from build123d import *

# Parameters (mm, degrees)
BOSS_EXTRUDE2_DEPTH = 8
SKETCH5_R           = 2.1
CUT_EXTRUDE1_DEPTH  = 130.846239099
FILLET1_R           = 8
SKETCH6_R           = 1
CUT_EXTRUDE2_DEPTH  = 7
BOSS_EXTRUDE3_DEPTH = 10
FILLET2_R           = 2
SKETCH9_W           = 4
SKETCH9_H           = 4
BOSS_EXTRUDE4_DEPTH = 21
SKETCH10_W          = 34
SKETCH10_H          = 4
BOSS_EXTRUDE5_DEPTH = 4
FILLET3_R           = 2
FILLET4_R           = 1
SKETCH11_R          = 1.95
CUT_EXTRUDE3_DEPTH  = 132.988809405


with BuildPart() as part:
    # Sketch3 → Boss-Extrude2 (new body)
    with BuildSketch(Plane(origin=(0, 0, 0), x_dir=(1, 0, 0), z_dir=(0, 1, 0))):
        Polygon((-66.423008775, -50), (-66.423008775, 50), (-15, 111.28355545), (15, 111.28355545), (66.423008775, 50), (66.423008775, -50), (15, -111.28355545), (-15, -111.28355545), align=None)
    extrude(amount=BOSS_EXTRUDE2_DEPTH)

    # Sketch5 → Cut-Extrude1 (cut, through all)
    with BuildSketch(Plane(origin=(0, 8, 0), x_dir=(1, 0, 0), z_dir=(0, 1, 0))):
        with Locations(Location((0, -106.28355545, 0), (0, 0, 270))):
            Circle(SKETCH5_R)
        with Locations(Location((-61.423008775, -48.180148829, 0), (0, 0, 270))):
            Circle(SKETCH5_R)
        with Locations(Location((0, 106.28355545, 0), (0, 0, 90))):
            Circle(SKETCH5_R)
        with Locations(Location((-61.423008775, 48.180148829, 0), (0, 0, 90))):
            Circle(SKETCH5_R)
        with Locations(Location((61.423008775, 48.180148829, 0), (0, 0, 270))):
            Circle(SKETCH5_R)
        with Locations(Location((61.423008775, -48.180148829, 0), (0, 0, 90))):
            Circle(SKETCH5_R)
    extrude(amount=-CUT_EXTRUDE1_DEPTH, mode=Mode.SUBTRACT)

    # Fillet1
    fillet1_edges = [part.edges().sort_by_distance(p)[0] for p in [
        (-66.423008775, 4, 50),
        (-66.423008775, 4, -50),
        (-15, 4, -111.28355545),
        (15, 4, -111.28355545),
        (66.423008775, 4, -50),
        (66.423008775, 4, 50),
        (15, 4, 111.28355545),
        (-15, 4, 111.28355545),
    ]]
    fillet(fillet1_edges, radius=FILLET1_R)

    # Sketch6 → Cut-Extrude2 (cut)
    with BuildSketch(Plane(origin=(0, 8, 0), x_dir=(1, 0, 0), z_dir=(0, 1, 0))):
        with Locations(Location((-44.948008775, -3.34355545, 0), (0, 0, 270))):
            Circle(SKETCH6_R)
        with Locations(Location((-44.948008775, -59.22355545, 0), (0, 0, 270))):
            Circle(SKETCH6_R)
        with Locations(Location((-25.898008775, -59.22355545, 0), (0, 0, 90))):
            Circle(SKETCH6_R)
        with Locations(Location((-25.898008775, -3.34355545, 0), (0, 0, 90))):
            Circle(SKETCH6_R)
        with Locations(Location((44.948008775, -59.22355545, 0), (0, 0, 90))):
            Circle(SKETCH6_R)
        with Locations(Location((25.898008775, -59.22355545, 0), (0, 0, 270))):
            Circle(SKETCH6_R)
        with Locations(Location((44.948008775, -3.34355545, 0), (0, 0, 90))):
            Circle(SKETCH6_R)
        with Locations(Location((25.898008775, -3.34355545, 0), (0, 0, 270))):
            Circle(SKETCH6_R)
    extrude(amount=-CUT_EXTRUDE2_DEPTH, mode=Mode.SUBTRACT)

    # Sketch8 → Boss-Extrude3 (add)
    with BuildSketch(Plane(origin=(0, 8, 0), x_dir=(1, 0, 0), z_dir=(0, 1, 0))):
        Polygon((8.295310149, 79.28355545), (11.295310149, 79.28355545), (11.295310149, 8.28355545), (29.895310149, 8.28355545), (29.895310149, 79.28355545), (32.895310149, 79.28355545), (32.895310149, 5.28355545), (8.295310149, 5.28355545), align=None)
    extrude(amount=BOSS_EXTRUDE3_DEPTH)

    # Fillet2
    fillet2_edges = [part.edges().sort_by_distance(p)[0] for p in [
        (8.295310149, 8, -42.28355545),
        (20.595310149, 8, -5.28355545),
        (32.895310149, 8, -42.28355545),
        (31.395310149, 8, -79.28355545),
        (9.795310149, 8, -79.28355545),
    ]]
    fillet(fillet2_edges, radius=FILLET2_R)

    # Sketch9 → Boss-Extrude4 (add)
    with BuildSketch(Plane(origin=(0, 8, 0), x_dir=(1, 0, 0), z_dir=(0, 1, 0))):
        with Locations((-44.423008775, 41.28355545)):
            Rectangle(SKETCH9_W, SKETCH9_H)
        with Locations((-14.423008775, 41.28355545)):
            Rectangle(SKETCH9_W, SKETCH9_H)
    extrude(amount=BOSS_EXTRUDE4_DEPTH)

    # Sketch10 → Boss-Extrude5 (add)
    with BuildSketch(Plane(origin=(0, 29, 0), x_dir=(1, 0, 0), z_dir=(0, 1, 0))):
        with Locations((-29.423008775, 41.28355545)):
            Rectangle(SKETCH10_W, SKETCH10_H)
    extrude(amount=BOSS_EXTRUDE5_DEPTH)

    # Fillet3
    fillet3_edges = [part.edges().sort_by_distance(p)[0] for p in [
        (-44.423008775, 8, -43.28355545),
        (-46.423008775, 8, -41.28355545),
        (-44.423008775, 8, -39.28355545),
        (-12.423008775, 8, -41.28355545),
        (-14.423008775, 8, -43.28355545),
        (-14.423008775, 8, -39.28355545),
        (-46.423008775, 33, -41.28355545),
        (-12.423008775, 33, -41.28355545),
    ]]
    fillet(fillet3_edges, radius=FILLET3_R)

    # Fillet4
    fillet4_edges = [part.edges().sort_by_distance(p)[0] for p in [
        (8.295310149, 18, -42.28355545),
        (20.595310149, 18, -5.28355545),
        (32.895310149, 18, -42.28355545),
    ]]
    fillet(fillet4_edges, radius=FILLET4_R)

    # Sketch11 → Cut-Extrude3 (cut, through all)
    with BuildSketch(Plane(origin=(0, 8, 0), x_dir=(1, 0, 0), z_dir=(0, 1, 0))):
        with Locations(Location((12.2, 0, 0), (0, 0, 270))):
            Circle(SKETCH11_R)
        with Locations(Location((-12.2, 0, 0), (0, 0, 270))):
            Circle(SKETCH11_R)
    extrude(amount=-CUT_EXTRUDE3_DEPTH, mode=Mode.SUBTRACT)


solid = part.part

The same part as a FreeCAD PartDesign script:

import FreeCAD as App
import Part
import Sketcher

V = App.Vector
Q = App.Units.Quantity


def edges_at(feature, points):
    """Names of the edges that pass closest to the given points."""
    edges = feature.Shape.Edges
    near = lambda p: min(range(len(edges)), key=lambda i: edges[i].distToShape(Part.Vertex(*p))[0])
    return sorted({f"Edge{near(p) + 1}" for p in points})

doc = App.newDocument("Part")
body = doc.addObject("PartDesign::Body", "Body")

# Sketch on XZ plane
sketch1 = body.newObject("Sketcher::SketchObject", "Sketch")
sketch1.AttachmentSupport = (doc.getObject("XZ_Plane"), [""])
sketch1.MapMode = "FlatFace"
sketch1.addGeometry([
    Part.LineSegment(V(-66, -50, 0), V(-66, 50, 0)),  # 0
    Part.LineSegment(V(-66, 50, 0), V(-15, 111, 0)),  # 1
    Part.LineSegment(V(-15, 111, 0), V(15, 111, 0)),  # 2
    Part.LineSegment(V(15, 111, 0), V(66, 50, 0)),  # 3
    Part.LineSegment(V(66, 50, 0), V(66, -50, 0)),  # 4
    Part.LineSegment(V(66, -50, 0), V(15, -111, 0)),  # 5
    Part.LineSegment(V(15, -111, 0), V(-15, -111, 0)),  # 6
    Part.LineSegment(V(-15, -111, 0), V(-66, -50, 0)),  # 7
], False)
sketch1.addConstraint([
    Sketcher.Constraint("Coincident", 0, 2, 1, 1),
    Sketcher.Constraint("Coincident", 1, 2, 2, 1),
    Sketcher.Constraint("Coincident", 2, 2, 3, 1),
    Sketcher.Constraint("Coincident", 3, 2, 4, 1),
    Sketcher.Constraint("Coincident", 4, 2, 5, 1),
    Sketcher.Constraint("Coincident", 5, 2, 6, 1),
    Sketcher.Constraint("Coincident", 6, 2, 7, 1),
    Sketcher.Constraint("Coincident", 7, 2, 0, 1),
    Sketcher.Constraint("Vertical", 0),
    Sketcher.Constraint("Horizontal", 2),
    Sketcher.Constraint("Vertical", 4),
    Sketcher.Constraint("Horizontal", 6),
    Sketcher.Constraint("Symmetric", 0, 2, 4, 2, -1, 1),
    Sketcher.Constraint("Symmetric", 1, 2, 5, 2, -1, 1),
    Sketcher.Constraint("Parallel", 3, 7),
    Sketcher.Constraint("Horizontal", 0, 2, 3, 2),
    Sketcher.Constraint("Horizontal", 4, 2, 7, 2),
    Sketcher.Constraint("Vertical", 2, 2, 5, 2),
    Sketcher.Constraint("DistanceX", 2, 1, 2, 2, 30.0),
    Sketcher.Constraint("DistanceY", 0, 1, 0, 2, 100.0),
    Sketcher.Constraint("Angle", 1, Q("50 deg")),
    Sketcher.Constraint("Distance", 1, 80.0),
])
pad1 = body.newObject("PartDesign::Pad", "Pad")
pad1.Profile = sketch1
pad1.Length = 8
pad1.Reversed = True

# Sketch on XZ plane
sketch2 = body.newObject("Sketcher::SketchObject", "Sketch001")
sketch2.AttachmentSupport = (doc.getObject("XZ_Plane"), [""])
sketch2.MapMode = "FlatFace"
sketch2.AttachmentOffset = App.Placement(V(0, 0, -8), App.Rotation())
sketch2.addGeometry([
    Part.Circle(V(0, 106.3, 0), V(0, 0, 1), 2.1),  # 0
    Part.Circle(V(-61.4, 48.2, 0), V(0, 0, 1), 2.1),  # 1
    Part.Circle(V(0, -106.3, 0), V(0, 0, 1), 2.1),  # 2
    Part.Circle(V(-61.4, -48.2, 0), V(0, 0, 1), 2.1),  # 3
    Part.Circle(V(61.4, -48.2, 0), V(0, 0, 1), 2.1),  # 4
    Part.Circle(V(61.4, 48.2, 0), V(0, 0, 1), 2.1),  # 5
], False)
sketch2.addConstraint([
    Sketcher.Constraint("Equal", 0, 1),
    Sketcher.Constraint("Equal", 1, 2),
    Sketcher.Constraint("Equal", 2, 3),
    Sketcher.Constraint("Equal", 3, 4),
    Sketcher.Constraint("Equal", 4, 5),
    Sketcher.Constraint("Symmetric", 0, 3, 2, 3, -1, 1),
    Sketcher.Constraint("Symmetric", 1, 3, 4, 3, -1, 1),
    Sketcher.Constraint("Symmetric", 3, 3, 5, 3, -1, 1),
    Sketcher.Constraint("Symmetric", 3, 3, 4, 3, -2),
    Sketcher.Constraint("PointOnObject", 0, 3, -2),
    Sketcher.Constraint("Diameter", 0, 4.2),
    Sketcher.Constraint("DistanceX", 1, 3, -1, 1, 61.423009),
    Sketcher.Constraint("DistanceY", -1, 1, 1, 3, 48.180149),
    Sketcher.Constraint("DistanceY", 2, 3, 0, 3, 212.567111),
])
pocket1 = body.newObject("PartDesign::Pocket", "Pocket")
pocket1.Profile = sketch2
pocket1.Type = "ThroughAll"
pocket1.Reversed = True
doc.recompute()

fillet = body.newObject("PartDesign::Fillet", "Fillet")
fillet.Base = (pocket1, edges_at(pocket1, [
    (-66.423, 4, 50),
    (-66.423, 4, -50),
    (-15, 4, -111.284),
    (15, 4, -111.284),
    (66.423, 4, -50),
    (66.423, 4, 50),
    (15, 4, 111.284),
    (-15, 4, 111.284),
]))
fillet.Radius = 8

# Sketch on XZ plane
sketch3 = body.newObject("Sketcher::SketchObject", "Sketch002")
sketch3.AttachmentSupport = (doc.getObject("XZ_Plane"), [""])
sketch3.MapMode = "FlatFace"
sketch3.AttachmentOffset = App.Placement(V(0, 0, -8), App.Rotation())
sketch3.addGeometry([
    Part.Circle(V(-44.9, 3.3, 0), V(0, 0, 1), 1),  # 0
    Part.Circle(V(-44.9, 59.2, 0), V(0, 0, 1), 1),  # 1
    Part.Circle(V(-25.9, 59.2, 0), V(0, 0, 1), 1),  # 2
    Part.Circle(V(-25.9, 3.3, 0), V(0, 0, 1), 1),  # 3
    Part.Circle(V(44.9, 59.2, 0), V(0, 0, 1), 1),  # 4
    Part.Circle(V(25.9, 59.2, 0), V(0, 0, 1), 1),  # 5
    Part.Circle(V(44.9, 3.3, 0), V(0, 0, 1), 1),  # 6
    Part.Circle(V(25.9, 3.3, 0), V(0, 0, 1), 1),  # 7
], False)
sketch3.addConstraint([
    Sketcher.Constraint("Equal", 0, 1),
    Sketcher.Constraint("Equal", 1, 2),
    Sketcher.Constraint("Equal", 2, 3),
    Sketcher.Constraint("Equal", 3, 4),
    Sketcher.Constraint("Equal", 4, 5),
    Sketcher.Constraint("Equal", 5, 6),
    Sketcher.Constraint("Equal", 6, 7),
    Sketcher.Constraint("Symmetric", 1, 3, 4, 3, -2),
    Sketcher.Constraint("Symmetric", 2, 3, 5, 3, -2),
    Sketcher.Constraint("Symmetric", 0, 3, 6, 3, -2),
    Sketcher.Constraint("Symmetric", 3, 3, 7, 3, -2),
    Sketcher.Constraint("Horizontal", 1, 3, 2, 3),
    Sketcher.Constraint("Horizontal", 0, 3, 3, 3),
    Sketcher.Constraint("Vertical", 0, 3, 1, 3),
    Sketcher.Constraint("Vertical", 2, 3, 3, 3),
    Sketcher.Constraint("Diameter", 0, 2.0),
    Sketcher.Constraint("DistanceY", 0, 3, 1, 3, 55.88),
    Sketcher.Constraint("DistanceX", 1, 3, 2, 3, 19.05),
    Sketcher.Constraint("DistanceX", 0, 3, -1, 1, 44.948009),
    Sketcher.Constraint("DistanceY", -1, 1, 0, 3, 3.343555),
])
pocket2 = body.newObject("PartDesign::Pocket", "Pocket001")
pocket2.Profile = sketch3
pocket2.Length = 7
pocket2.Reversed = True

# Sketch on XZ plane
sketch4 = body.newObject("Sketcher::SketchObject", "Sketch003")
sketch4.AttachmentSupport = (doc.getObject("XZ_Plane"), [""])
sketch4.MapMode = "FlatFace"
sketch4.AttachmentOffset = App.Placement(V(0, 0, -8), App.Rotation())
sketch4.addGeometry([
    Part.LineSegment(V(11.3, -79.3, 0), V(8.3, -79.3, 0)),  # 0
    Part.LineSegment(V(8.3, -79.3, 0), V(8.3, -5.3, 0)),  # 1
    Part.LineSegment(V(8.3, -5.3, 0), V(32.9, -5.3, 0)),  # 2
    Part.LineSegment(V(32.9, -5.3, 0), V(32.9, -79.3, 0)),  # 3
    Part.LineSegment(V(32.9, -79.3, 0), V(29.9, -79.3, 0)),  # 4
    Part.LineSegment(V(29.9, -79.3, 0), V(29.9, -8.3, 0)),  # 5
    Part.LineSegment(V(29.9, -8.3, 0), V(11.3, -8.3, 0)),  # 6
    Part.LineSegment(V(11.3, -8.3, 0), V(11.3, -79.3, 0)),  # 7
], False)
sketch4.addConstraint([
    Sketcher.Constraint("Coincident", 0, 2, 1, 1),
    Sketcher.Constraint("Coincident", 1, 2, 2, 1),
    Sketcher.Constraint("Coincident", 2, 2, 3, 1),
    Sketcher.Constraint("Coincident", 3, 2, 4, 1),
    Sketcher.Constraint("Coincident", 4, 2, 5, 1),
    Sketcher.Constraint("Coincident", 5, 2, 6, 1),
    Sketcher.Constraint("Coincident", 6, 2, 7, 1),
    Sketcher.Constraint("Coincident", 7, 2, 0, 1),
    Sketcher.Constraint("Horizontal", 0),
    Sketcher.Constraint("Vertical", 1),
    Sketcher.Constraint("Horizontal", 2),
    Sketcher.Constraint("Vertical", 3),
    Sketcher.Constraint("Horizontal", 4),
    Sketcher.Constraint("Vertical", 5),
    Sketcher.Constraint("Horizontal", 6),
    Sketcher.Constraint("Vertical", 7),
    Sketcher.Constraint("Horizontal", 0, 2, 3, 2),
    Sketcher.Constraint("Equal", 0, 4),
    Sketcher.Constraint("DistanceX", 0, 2, 0, 1, 3.0),
    Sketcher.Constraint("DistanceY", 1, 1, 1, 2, 74.0),
    Sketcher.Constraint("DistanceY", 5, 1, 5, 2, 71.0),
    Sketcher.Constraint("DistanceX", 2, 1, 2, 2, 24.6),
    Sketcher.Constraint("DistanceX", -1, 1, 0, 2, 8.29531),
    Sketcher.Constraint("DistanceY", 0, 2, -1, 1, 79.283555),
])
pad2 = body.newObject("PartDesign::Pad", "Pad001")
pad2.Profile = sketch4
pad2.Length = 10
pad2.Reversed = True
doc.recompute()

fillet2 = body.newObject("PartDesign::Fillet", "Fillet001")
fillet2.Base = (pad2, edges_at(pad2, [
    (8.295, 8, -42.284),
    (20.595, 8, -5.284),
    (32.895, 8, -42.284),
    (31.395, 8, -79.284),
    (9.795, 8, -79.284),
]))
fillet2.Radius = 2

# Sketch on XZ plane
sketch5 = body.newObject("Sketcher::SketchObject", "Sketch004")
sketch5.AttachmentSupport = (doc.getObject("XZ_Plane"), [""])
sketch5.MapMode = "FlatFace"
sketch5.AttachmentOffset = App.Placement(V(0, 0, -8), App.Rotation())
sketch5.addGeometry([
    Part.LineSegment(V(-46.4, -43.3, 0), V(-46.4, -39.3, 0)),  # 0
    Part.LineSegment(V(-46.4, -39.3, 0), V(-42.4, -39.3, 0)),  # 1
    Part.LineSegment(V(-42.4, -39.3, 0), V(-42.4, -43.3, 0)),  # 2
    Part.LineSegment(V(-42.4, -43.3, 0), V(-46.4, -43.3, 0)),  # 3
    Part.LineSegment(V(-16.4, -43.3, 0), V(-16.4, -39.3, 0)),  # 4
    Part.LineSegment(V(-16.4, -39.3, 0), V(-12.4, -39.3, 0)),  # 5
    Part.LineSegment(V(-12.4, -39.3, 0), V(-12.4, -43.3, 0)),  # 6
    Part.LineSegment(V(-12.4, -43.3, 0), V(-16.4, -43.3, 0)),  # 7
], False)
sketch5.addConstraint([
    Sketcher.Constraint("Coincident", 0, 2, 1, 1),
    Sketcher.Constraint("Coincident", 1, 2, 2, 1),
    Sketcher.Constraint("Coincident", 2, 2, 3, 1),
    Sketcher.Constraint("Coincident", 3, 2, 0, 1),
    Sketcher.Constraint("Coincident", 4, 2, 5, 1),
    Sketcher.Constraint("Coincident", 5, 2, 6, 1),
    Sketcher.Constraint("Coincident", 6, 2, 7, 1),
    Sketcher.Constraint("Coincident", 7, 2, 4, 1),
    Sketcher.Constraint("Vertical", 0),
    Sketcher.Constraint("Horizontal", 1),
    Sketcher.Constraint("Vertical", 2),
    Sketcher.Constraint("Horizontal", 3),
    Sketcher.Constraint("Vertical", 4),
    Sketcher.Constraint("Horizontal", 5),
    Sketcher.Constraint("Vertical", 6),
    Sketcher.Constraint("Horizontal", 7),
    Sketcher.Constraint("Horizontal", 1, 2, 4, 2),
    Sketcher.Constraint("Horizontal", 3, 2, 6, 2),
    Sketcher.Constraint("Equal", 3, 5),
    Sketcher.Constraint("Equal", 7, 0),
    Sketcher.Constraint("DistanceX", 1, 1, 1, 2, 4.0),
    Sketcher.Constraint("DistanceX", 1, 2, 4, 2, 26.0),
    Sketcher.Constraint("DistanceX", 0, 2, -1, 1, 46.423009),
    Sketcher.Constraint("DistanceY", 0, 2, -1, 1, 39.283555),
])
pad3 = body.newObject("PartDesign::Pad", "Pad002")
pad3.Profile = sketch5
pad3.Length = 21
pad3.Reversed = True

# Sketch on XZ plane
sketch6 = body.newObject("Sketcher::SketchObject", "Sketch005")
sketch6.AttachmentSupport = (doc.getObject("XZ_Plane"), [""])
sketch6.MapMode = "FlatFace"
sketch6.AttachmentOffset = App.Placement(V(0, 0, -29), App.Rotation())
sketch6.addGeometry([
    Part.LineSegment(V(-46.4, -43.3, 0), V(-46.4, -39.3, 0)),
    Part.LineSegment(V(-46.4, -39.3, 0), V(-12.4, -39.3, 0)),
    Part.LineSegment(V(-12.4, -39.3, 0), V(-12.4, -43.3, 0)),
    Part.LineSegment(V(-12.4, -43.3, 0), V(-46.4, -43.3, 0)),
], False)
sketch6.addConstraint([
    Sketcher.Constraint("Coincident", 0, 2, 1, 1),
    Sketcher.Constraint("Coincident", 1, 2, 2, 1),
    Sketcher.Constraint("Coincident", 2, 2, 3, 1),
    Sketcher.Constraint("Coincident", 3, 2, 0, 1),
    Sketcher.Constraint("Vertical", 0),
    Sketcher.Constraint("Horizontal", 1),
    Sketcher.Constraint("Vertical", 2),
    Sketcher.Constraint("Horizontal", 3),
    Sketcher.Constraint("DistanceX", 1, 1, 1, 2, 34.0),
    Sketcher.Constraint("DistanceY", 0, 1, 0, 2, 4.0),
    Sketcher.Constraint("DistanceX", 0, 2, -1, 1, 46.423009),
    Sketcher.Constraint("DistanceY", 0, 2, -1, 1, 39.283555),
])
pad4 = body.newObject("PartDesign::Pad", "Pad003")
pad4.Profile = sketch6
pad4.Length = 4
pad4.Reversed = True
doc.recompute()

fillet3 = body.newObject("PartDesign::Fillet", "Fillet002")
fillet3.Base = (pad4, edges_at(pad4, [
    (-44.423, 8, -43.284),
    (-46.423, 8, -41.284),
    (-44.423, 8, -39.284),
    (-12.423, 8, -41.284),
    (-14.423, 8, -43.284),
    (-14.423, 8, -39.284),
    (-46.423, 33, -41.284),
    (-12.423, 33, -41.284),
]))
fillet3.Radius = 2
doc.recompute()

fillet4 = body.newObject("PartDesign::Fillet", "Fillet003")
fillet4.Base = (fillet3, edges_at(fillet3, [(8.295, 18, -42.284), (20.595, 18, -5.284), (32.895, 18, -42.284)]))
fillet4.Radius = 1

# Sketch on XZ plane
sketch7 = body.newObject("Sketcher::SketchObject", "Sketch006")
sketch7.AttachmentSupport = (doc.getObject("XZ_Plane"), [""])
sketch7.MapMode = "FlatFace"
sketch7.AttachmentOffset = App.Placement(V(0, 0, -8), App.Rotation())
sketch7.addGeometry([
    Part.Circle(V(12.2, 0, 0), V(0, 0, 1), 1.9),
    Part.Circle(V(-12.2, 0, 0), V(0, 0, 1), 1.9),
], False)
sketch7.addConstraint([
    Sketcher.Constraint("Equal", 0, 1),
    Sketcher.Constraint("Symmetric", 0, 3, 1, 3, -1, 1),
    Sketcher.Constraint("PointOnObject", 0, 3, -1),
    Sketcher.Constraint("Diameter", 0, 3.9),
    Sketcher.Constraint("DistanceX", -1, 1, 0, 3, 12.2),
])
pocket3 = body.newObject("PartDesign::Pocket", "Pocket002")
pocket3.Profile = sketch7
pocket3.Type = "ThroughAll"
pocket3.Reversed = True

doc.recompute()
